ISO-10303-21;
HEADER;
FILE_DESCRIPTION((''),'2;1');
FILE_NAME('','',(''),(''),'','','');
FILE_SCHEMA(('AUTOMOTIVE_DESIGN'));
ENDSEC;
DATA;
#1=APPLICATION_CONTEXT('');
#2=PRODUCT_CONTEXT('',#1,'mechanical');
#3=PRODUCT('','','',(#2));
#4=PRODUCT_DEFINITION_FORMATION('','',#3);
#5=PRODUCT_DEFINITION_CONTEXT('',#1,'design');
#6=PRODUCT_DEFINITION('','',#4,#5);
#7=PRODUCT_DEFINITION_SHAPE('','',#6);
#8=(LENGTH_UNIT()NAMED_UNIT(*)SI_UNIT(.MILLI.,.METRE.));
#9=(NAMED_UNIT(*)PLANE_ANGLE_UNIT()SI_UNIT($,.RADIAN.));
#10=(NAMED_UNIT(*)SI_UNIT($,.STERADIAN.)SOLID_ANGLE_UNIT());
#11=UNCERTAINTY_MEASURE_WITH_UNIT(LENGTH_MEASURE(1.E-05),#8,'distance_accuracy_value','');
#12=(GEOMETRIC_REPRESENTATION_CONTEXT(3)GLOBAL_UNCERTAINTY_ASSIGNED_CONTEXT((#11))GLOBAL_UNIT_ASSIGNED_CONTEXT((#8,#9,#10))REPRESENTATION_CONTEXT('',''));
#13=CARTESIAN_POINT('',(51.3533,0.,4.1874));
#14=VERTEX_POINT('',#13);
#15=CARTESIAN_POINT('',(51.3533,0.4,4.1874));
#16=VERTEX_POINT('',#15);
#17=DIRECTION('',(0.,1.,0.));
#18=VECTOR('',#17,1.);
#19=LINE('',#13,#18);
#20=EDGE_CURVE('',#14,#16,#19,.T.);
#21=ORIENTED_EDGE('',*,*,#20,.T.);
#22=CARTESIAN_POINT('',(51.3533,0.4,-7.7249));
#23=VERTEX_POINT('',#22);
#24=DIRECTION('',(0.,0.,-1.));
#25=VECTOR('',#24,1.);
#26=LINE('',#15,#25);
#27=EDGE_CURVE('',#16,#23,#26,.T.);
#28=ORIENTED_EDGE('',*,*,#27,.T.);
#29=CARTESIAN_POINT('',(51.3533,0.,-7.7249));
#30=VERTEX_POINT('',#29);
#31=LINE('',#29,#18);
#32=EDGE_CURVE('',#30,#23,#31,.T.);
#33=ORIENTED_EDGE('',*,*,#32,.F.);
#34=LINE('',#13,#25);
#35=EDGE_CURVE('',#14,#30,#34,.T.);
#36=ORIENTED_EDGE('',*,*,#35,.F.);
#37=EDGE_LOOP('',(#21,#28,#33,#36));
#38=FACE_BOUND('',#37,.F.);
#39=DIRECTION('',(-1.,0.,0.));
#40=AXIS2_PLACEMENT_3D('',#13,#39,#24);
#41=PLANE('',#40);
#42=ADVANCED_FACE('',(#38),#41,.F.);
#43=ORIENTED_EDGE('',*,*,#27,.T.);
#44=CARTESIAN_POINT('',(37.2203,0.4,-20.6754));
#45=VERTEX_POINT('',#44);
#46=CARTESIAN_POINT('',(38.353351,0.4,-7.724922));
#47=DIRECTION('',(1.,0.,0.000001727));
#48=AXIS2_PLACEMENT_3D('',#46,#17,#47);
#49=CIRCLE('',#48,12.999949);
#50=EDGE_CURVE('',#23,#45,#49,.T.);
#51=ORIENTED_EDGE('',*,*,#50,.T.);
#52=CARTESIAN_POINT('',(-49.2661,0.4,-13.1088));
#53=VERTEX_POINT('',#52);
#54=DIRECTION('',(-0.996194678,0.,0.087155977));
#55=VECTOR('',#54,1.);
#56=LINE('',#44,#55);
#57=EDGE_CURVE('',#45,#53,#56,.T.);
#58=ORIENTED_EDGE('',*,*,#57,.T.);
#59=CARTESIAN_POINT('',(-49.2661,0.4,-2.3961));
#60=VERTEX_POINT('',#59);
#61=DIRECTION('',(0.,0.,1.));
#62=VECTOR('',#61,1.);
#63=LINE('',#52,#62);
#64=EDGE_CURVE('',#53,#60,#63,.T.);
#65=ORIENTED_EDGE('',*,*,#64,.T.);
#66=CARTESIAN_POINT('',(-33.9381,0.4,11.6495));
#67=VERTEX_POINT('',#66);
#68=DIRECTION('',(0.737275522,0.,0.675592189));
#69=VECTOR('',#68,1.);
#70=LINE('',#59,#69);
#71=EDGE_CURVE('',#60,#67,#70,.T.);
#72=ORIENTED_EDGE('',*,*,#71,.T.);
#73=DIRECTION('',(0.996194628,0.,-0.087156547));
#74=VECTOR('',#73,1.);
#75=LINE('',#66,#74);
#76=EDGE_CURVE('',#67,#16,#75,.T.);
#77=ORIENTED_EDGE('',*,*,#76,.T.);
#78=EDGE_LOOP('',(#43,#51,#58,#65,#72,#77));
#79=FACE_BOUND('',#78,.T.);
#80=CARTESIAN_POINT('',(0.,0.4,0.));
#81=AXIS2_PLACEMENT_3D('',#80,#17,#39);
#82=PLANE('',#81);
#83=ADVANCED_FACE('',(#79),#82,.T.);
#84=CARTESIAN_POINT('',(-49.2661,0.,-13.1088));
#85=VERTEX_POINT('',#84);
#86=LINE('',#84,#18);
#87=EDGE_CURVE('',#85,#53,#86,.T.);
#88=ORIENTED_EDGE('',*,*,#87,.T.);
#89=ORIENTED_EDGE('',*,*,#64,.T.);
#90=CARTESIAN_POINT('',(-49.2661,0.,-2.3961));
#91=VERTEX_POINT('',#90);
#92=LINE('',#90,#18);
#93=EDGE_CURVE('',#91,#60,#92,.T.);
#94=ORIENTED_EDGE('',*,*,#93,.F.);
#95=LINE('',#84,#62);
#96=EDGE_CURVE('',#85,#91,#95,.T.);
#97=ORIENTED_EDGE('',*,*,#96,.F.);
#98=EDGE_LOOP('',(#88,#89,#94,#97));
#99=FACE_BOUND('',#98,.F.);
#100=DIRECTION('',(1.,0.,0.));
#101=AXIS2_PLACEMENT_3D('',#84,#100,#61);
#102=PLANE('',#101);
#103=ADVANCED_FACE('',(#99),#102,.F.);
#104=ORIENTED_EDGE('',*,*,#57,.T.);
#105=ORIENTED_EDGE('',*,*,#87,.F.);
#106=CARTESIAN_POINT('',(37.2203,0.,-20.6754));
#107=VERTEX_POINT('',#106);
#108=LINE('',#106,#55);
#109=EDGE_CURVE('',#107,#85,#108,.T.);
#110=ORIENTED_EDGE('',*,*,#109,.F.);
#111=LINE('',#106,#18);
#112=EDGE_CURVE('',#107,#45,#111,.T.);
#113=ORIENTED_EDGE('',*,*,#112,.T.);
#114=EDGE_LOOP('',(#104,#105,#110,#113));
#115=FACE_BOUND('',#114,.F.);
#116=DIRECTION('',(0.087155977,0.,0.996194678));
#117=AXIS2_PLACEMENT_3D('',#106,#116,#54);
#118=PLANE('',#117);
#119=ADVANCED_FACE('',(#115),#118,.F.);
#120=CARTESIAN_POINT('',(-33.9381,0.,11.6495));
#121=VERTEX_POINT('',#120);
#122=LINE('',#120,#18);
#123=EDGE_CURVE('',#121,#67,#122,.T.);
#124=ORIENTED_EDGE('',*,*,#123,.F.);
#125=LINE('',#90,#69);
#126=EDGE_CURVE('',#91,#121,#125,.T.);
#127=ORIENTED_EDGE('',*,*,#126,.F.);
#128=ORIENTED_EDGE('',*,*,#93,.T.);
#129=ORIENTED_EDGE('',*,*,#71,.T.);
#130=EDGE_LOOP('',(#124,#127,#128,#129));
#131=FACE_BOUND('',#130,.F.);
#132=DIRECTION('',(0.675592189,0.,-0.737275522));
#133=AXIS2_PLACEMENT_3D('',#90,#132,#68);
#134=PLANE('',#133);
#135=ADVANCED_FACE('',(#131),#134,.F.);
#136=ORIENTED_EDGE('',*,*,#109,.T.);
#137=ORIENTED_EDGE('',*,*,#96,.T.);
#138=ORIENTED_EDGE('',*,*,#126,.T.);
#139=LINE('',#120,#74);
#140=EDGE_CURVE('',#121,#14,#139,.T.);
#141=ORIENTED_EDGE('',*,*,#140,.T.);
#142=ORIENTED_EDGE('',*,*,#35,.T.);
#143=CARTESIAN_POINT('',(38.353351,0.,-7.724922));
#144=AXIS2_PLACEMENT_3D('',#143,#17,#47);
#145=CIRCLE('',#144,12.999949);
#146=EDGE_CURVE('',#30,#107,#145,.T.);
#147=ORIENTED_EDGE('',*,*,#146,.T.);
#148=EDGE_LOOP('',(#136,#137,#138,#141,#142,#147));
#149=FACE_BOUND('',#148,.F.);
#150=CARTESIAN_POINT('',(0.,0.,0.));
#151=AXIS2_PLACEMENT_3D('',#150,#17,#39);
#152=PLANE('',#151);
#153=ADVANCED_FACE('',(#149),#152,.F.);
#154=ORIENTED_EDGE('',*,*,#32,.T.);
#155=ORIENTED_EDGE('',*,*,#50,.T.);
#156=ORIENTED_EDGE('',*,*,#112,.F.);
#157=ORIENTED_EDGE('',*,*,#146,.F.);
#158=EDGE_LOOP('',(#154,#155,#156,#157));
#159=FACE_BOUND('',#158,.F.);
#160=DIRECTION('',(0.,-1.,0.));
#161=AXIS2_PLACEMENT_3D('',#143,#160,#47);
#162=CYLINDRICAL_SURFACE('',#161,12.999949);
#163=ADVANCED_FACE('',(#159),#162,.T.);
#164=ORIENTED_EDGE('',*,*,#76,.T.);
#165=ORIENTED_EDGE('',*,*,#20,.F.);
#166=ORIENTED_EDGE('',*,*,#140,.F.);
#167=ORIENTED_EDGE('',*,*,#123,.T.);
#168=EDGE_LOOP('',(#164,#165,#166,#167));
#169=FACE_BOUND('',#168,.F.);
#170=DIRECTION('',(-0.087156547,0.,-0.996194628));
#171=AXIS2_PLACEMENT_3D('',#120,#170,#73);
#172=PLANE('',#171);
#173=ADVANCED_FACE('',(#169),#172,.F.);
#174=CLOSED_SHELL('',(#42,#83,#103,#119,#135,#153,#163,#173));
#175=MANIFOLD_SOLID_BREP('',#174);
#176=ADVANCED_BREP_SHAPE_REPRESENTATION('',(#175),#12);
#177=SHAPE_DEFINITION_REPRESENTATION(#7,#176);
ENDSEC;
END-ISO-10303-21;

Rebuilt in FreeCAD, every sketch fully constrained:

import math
import FreeCAD as App
import Part
import Sketcher
Q = App.Units.Quantity

doc = App.newDocument("Part")
body = doc.addObject("PartDesign::Body", "Body")

# Sketch on XZ plane
sketch1 = doc.addObject("Sketcher::SketchObject", "Sketch")
body.addObject(sketch1)
sketch1.AttachmentSupport = (doc.XZ_Plane, [""])
sketch1.MapMode = "FlatFace"
sketch1.addGeometry([
    Part.LineSegment(App.Vector(-49.2661, -13.1088, 0), App.Vector(-49.2661, -2.3961, 0)),  # 0
    Part.LineSegment(App.Vector(-49.2661, -2.3961, 0), App.Vector(-33.9381, 11.6495, 0)),  # 1
    Part.LineSegment(App.Vector(-33.9381, 11.6495, 0), App.Vector(51.3533, 4.1874, 0)),  # 2
    Part.LineSegment(App.Vector(51.3533, 4.1874, 0), App.Vector(51.3533, -7.7249, 0)),  # 3
    Part.ArcOfCircle(Part.Circle(App.Vector(38.3533, -7.7249, 0), App.Vector(0, 0, 1), 13), math.radians(-94.999904), math.radians(0)),  # 4
    Part.LineSegment(App.Vector(37.2203, -20.6754, 0), App.Vector(-49.2661, -13.1088, 0)),  # 5
], False)
sketch1.addConstraint([
    Sketcher.Constraint("Coincident", 0, 2, 1, 1),
    Sketcher.Constraint("Coincident", 1, 2, 2, 1),
    Sketcher.Constraint("Coincident", 2, 2, 3, 1),
    Sketcher.Constraint("Coincident", 3, 2, 4, 2),
    Sketcher.Constraint("Coincident", 4, 1, 5, 1),
    Sketcher.Constraint("Coincident", 5, 2, 0, 1),
    Sketcher.Constraint("Vertical", 0),
    Sketcher.Constraint("Vertical", 3),
    Sketcher.Constraint("Radius", 4, Q("13 mm")),
    Sketcher.Constraint("Distance", 1, Q("20.79 mm")),
    Sketcher.Constraint("DistanceY", 0, 1, 0, 2, Q("10.7127 mm")),
    Sketcher.Constraint("DistanceY", 3, 2, 3, 1, Q("11.9123 mm")),
    Sketcher.Constraint("DistanceY", 4, 3, -1, 1, Q("7.725 mm")),
    Sketcher.Constraint("DistanceX", 0, 2, -1, 1, Q("49.266 mm")),
    Sketcher.Constraint("DistanceY", 0, 2, -1, 1, Q("2.396 mm")),
    Sketcher.Constraint("DistanceX", 1, 2, -1, 1, Q("33.938 mm")),
    Sketcher.Constraint("DistanceY", 3, 2, -1, 1, Q("7.725 mm")),
    Sketcher.Constraint("DistanceX", 4, 1, 4, 3, Q("1.133 mm")),
    Sketcher.Constraint("Distance", 2, Q("85.6172 mm")),
])
pad1 = doc.addObject("PartDesign::Pad", "Pad")
body.addObject(pad1)
pad1.Profile = sketch1
pad1.Length = 0.4
pad1.Reversed = True

doc.recompute()
